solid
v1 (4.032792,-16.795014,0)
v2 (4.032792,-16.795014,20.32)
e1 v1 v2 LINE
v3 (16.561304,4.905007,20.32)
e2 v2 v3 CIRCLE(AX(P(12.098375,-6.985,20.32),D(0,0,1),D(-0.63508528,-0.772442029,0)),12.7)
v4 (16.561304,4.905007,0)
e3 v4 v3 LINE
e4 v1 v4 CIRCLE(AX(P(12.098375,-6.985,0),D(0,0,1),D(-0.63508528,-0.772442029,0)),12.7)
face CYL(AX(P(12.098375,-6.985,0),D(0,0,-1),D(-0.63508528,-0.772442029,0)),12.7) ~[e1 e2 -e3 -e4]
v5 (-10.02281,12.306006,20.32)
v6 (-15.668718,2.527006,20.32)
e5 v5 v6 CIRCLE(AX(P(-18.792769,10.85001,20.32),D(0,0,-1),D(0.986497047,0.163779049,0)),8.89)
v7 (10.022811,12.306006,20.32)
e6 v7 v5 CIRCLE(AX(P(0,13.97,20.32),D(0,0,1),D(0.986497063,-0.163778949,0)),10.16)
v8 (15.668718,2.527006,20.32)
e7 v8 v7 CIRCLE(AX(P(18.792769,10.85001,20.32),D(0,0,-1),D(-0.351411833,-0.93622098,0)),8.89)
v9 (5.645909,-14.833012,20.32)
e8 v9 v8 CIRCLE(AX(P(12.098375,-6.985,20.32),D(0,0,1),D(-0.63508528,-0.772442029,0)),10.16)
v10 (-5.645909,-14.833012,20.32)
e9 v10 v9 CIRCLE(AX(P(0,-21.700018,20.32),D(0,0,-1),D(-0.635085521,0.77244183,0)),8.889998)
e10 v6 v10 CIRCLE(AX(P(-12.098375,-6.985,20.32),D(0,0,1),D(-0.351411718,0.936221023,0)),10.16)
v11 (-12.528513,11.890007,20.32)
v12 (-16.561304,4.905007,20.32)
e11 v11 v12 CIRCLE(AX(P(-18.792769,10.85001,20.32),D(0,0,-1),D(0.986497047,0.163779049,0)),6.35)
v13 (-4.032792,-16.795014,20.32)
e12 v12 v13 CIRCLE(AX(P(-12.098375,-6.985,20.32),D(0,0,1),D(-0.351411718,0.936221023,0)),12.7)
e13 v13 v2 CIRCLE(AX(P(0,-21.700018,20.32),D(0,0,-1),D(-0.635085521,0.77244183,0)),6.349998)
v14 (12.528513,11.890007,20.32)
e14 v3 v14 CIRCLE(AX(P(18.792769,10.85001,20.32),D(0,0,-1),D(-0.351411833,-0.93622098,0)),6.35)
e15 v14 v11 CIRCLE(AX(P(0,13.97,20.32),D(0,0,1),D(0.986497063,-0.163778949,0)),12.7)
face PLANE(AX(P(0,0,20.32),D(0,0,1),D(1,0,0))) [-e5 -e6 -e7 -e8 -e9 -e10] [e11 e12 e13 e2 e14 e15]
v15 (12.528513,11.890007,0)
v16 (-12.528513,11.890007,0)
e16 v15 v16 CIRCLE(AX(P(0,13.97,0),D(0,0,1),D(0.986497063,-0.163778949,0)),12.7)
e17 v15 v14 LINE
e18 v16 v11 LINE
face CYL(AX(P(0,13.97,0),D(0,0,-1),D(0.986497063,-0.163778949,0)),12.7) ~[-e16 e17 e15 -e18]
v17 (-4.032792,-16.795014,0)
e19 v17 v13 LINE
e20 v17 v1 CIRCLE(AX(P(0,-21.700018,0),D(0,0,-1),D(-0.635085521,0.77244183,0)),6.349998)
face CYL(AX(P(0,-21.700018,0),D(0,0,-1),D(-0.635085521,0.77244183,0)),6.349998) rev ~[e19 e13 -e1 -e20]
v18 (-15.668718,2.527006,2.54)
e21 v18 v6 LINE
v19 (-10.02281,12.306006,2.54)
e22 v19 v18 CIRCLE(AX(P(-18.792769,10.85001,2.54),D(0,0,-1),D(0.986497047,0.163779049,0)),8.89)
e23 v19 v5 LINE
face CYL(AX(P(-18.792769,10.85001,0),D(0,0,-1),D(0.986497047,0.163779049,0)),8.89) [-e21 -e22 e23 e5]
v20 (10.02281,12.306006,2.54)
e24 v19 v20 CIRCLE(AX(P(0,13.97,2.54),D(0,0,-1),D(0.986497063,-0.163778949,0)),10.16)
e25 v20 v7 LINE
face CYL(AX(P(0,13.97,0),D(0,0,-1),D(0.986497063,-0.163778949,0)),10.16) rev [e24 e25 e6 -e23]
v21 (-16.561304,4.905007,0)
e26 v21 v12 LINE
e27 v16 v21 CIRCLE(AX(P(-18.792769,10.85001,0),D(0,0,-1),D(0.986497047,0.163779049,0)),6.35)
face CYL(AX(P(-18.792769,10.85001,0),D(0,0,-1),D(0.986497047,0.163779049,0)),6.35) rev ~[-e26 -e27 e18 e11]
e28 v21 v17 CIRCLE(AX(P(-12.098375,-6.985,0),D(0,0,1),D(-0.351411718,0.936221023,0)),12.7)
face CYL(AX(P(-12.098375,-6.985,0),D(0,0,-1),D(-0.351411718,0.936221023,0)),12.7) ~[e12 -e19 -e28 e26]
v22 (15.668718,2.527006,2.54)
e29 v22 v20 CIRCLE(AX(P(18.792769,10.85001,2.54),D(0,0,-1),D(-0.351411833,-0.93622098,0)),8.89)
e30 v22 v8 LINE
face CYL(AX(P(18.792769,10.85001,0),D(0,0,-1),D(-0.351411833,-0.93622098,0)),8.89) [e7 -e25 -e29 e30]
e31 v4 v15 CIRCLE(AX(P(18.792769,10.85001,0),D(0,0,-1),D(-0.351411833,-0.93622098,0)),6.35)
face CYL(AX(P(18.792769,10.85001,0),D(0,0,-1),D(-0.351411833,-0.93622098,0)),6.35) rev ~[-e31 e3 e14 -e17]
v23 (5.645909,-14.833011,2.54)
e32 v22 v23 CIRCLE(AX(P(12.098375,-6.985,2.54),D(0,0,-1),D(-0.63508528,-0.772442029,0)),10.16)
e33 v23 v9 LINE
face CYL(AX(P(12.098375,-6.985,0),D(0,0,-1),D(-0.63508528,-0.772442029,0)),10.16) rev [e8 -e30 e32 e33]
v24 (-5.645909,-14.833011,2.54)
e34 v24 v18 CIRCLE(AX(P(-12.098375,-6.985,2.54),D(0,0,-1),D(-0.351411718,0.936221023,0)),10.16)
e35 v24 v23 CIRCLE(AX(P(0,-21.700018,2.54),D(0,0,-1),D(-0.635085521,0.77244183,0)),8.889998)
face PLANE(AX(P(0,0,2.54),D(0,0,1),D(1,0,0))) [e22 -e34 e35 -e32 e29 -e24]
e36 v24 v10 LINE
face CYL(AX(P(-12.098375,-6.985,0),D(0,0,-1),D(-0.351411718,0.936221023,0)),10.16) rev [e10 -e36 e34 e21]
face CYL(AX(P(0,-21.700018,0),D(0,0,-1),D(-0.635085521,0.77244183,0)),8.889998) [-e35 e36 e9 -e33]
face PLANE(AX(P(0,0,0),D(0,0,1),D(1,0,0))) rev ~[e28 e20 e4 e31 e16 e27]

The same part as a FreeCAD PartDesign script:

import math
import FreeCAD as App
import Part
import Sketcher

V = App.Vector
Q = App.Units.Quantity


def faces_at(feature, points):
    """Names of the faces that lie closest to the given points."""
    faces = feature.Shape.Faces
    near = lambda p: min(range(len(faces)), key=lambda i: faces[i].distToShape(Part.Vertex(*p))[0])
    return sorted({f"Face{near(p) + 1}" for p in points})

doc = App.newDocument("Part")
body = doc.addObject("PartDesign::Body", "Body")

# Sketch on XY plane
sketch1 = body.newObject("Sketcher::SketchObject", "Sketch")
sketch1.AttachmentSupport = (doc.getObject("XY_Plane"), [""])
sketch1.MapMode = "FlatFace"
sketch1.addGeometry([
    Part.ArcOfCircle(Part.Circle(V(0, -22, 0), V(0, 0, 1), 6), math.radians(51), math.radians(129)),  # 0
    Part.ArcOfCircle(Part.Circle(V(12, -7, 0), V(0, 0, 1), 13), math.radians(-129), math.radians(69)),  # 1
    Part.ArcOfCircle(Part.Circle(V(19, 11, 0), V(0, 0, 1), 6), math.radians(171), math.radians(249)),  # 2
    Part.ArcOfCircle(Part.Circle(V(0, 14, 0), V(0, 0, 1), 13), math.radians(-9), math.radians(189)),  # 3
    Part.ArcOfCircle(Part.Circle(V(-19, 11, 0), V(0, 0, 1), 6), math.radians(-69), math.radians(9)),  # 4
    Part.ArcOfCircle(Part.Circle(V(-12, -7, 0), V(0, 0, 1), 13), math.radians(111), math.radians(309)),  # 5
], False)
sketch1.addConstraint([
    Sketcher.Constraint("Tangent", 0, 1, 1, 1),
    Sketcher.Constraint("Tangent", 1, 2, 2, 2),
    Sketcher.Constraint("Tangent", 2, 1, 3, 1),
    Sketcher.Constraint("Tangent", 3, 2, 4, 2),
    Sketcher.Constraint("Tangent", 4, 1, 5, 1),
    Sketcher.Constraint("Tangent", 5, 2, 0, 2),
    Sketcher.Constraint("Equal", 0, 2),
    Sketcher.Constraint("Equal", 1, 3),
    Sketcher.Constraint("Equal", 2, 4),
    Sketcher.Constraint("Equal", 3, 5),
    Sketcher.Constraint("Symmetric", 2, 3, 4, 3, -2),
    Sketcher.Constraint("PointOnObject", 0, 3, -2),
    Sketcher.Constraint("Radius", 1, Q("0.5 in")),
    Sketcher.Constraint("Radius", 0, Q("0.2499999 in")),
    Sketcher.Constraint("DistanceY", -1, 1, 3, 3, Q("0.55 in")),
    Sketcher.Constraint("DistanceY", 1, 3, -1, 1, Q("0.275 in")),
    Sketcher.Constraint("DistanceY", 0, 3, -1, 1, 21.700018),
])
pad1 = body.newObject("PartDesign::Pad", "Pad")
pad1.Profile = sketch1
pad1.Length = Q("0.8 in")
doc.recompute()

thickness = body.newObject("PartDesign::Thickness", "Thickness")
thickness.Base = (pad1, faces_at(pad1, [(0, 3.492, 20.32)]))
thickness.Value = Q("0.1 in")
thickness.Reversed = True
thickness.Join = "Arc"

doc.recompute()
